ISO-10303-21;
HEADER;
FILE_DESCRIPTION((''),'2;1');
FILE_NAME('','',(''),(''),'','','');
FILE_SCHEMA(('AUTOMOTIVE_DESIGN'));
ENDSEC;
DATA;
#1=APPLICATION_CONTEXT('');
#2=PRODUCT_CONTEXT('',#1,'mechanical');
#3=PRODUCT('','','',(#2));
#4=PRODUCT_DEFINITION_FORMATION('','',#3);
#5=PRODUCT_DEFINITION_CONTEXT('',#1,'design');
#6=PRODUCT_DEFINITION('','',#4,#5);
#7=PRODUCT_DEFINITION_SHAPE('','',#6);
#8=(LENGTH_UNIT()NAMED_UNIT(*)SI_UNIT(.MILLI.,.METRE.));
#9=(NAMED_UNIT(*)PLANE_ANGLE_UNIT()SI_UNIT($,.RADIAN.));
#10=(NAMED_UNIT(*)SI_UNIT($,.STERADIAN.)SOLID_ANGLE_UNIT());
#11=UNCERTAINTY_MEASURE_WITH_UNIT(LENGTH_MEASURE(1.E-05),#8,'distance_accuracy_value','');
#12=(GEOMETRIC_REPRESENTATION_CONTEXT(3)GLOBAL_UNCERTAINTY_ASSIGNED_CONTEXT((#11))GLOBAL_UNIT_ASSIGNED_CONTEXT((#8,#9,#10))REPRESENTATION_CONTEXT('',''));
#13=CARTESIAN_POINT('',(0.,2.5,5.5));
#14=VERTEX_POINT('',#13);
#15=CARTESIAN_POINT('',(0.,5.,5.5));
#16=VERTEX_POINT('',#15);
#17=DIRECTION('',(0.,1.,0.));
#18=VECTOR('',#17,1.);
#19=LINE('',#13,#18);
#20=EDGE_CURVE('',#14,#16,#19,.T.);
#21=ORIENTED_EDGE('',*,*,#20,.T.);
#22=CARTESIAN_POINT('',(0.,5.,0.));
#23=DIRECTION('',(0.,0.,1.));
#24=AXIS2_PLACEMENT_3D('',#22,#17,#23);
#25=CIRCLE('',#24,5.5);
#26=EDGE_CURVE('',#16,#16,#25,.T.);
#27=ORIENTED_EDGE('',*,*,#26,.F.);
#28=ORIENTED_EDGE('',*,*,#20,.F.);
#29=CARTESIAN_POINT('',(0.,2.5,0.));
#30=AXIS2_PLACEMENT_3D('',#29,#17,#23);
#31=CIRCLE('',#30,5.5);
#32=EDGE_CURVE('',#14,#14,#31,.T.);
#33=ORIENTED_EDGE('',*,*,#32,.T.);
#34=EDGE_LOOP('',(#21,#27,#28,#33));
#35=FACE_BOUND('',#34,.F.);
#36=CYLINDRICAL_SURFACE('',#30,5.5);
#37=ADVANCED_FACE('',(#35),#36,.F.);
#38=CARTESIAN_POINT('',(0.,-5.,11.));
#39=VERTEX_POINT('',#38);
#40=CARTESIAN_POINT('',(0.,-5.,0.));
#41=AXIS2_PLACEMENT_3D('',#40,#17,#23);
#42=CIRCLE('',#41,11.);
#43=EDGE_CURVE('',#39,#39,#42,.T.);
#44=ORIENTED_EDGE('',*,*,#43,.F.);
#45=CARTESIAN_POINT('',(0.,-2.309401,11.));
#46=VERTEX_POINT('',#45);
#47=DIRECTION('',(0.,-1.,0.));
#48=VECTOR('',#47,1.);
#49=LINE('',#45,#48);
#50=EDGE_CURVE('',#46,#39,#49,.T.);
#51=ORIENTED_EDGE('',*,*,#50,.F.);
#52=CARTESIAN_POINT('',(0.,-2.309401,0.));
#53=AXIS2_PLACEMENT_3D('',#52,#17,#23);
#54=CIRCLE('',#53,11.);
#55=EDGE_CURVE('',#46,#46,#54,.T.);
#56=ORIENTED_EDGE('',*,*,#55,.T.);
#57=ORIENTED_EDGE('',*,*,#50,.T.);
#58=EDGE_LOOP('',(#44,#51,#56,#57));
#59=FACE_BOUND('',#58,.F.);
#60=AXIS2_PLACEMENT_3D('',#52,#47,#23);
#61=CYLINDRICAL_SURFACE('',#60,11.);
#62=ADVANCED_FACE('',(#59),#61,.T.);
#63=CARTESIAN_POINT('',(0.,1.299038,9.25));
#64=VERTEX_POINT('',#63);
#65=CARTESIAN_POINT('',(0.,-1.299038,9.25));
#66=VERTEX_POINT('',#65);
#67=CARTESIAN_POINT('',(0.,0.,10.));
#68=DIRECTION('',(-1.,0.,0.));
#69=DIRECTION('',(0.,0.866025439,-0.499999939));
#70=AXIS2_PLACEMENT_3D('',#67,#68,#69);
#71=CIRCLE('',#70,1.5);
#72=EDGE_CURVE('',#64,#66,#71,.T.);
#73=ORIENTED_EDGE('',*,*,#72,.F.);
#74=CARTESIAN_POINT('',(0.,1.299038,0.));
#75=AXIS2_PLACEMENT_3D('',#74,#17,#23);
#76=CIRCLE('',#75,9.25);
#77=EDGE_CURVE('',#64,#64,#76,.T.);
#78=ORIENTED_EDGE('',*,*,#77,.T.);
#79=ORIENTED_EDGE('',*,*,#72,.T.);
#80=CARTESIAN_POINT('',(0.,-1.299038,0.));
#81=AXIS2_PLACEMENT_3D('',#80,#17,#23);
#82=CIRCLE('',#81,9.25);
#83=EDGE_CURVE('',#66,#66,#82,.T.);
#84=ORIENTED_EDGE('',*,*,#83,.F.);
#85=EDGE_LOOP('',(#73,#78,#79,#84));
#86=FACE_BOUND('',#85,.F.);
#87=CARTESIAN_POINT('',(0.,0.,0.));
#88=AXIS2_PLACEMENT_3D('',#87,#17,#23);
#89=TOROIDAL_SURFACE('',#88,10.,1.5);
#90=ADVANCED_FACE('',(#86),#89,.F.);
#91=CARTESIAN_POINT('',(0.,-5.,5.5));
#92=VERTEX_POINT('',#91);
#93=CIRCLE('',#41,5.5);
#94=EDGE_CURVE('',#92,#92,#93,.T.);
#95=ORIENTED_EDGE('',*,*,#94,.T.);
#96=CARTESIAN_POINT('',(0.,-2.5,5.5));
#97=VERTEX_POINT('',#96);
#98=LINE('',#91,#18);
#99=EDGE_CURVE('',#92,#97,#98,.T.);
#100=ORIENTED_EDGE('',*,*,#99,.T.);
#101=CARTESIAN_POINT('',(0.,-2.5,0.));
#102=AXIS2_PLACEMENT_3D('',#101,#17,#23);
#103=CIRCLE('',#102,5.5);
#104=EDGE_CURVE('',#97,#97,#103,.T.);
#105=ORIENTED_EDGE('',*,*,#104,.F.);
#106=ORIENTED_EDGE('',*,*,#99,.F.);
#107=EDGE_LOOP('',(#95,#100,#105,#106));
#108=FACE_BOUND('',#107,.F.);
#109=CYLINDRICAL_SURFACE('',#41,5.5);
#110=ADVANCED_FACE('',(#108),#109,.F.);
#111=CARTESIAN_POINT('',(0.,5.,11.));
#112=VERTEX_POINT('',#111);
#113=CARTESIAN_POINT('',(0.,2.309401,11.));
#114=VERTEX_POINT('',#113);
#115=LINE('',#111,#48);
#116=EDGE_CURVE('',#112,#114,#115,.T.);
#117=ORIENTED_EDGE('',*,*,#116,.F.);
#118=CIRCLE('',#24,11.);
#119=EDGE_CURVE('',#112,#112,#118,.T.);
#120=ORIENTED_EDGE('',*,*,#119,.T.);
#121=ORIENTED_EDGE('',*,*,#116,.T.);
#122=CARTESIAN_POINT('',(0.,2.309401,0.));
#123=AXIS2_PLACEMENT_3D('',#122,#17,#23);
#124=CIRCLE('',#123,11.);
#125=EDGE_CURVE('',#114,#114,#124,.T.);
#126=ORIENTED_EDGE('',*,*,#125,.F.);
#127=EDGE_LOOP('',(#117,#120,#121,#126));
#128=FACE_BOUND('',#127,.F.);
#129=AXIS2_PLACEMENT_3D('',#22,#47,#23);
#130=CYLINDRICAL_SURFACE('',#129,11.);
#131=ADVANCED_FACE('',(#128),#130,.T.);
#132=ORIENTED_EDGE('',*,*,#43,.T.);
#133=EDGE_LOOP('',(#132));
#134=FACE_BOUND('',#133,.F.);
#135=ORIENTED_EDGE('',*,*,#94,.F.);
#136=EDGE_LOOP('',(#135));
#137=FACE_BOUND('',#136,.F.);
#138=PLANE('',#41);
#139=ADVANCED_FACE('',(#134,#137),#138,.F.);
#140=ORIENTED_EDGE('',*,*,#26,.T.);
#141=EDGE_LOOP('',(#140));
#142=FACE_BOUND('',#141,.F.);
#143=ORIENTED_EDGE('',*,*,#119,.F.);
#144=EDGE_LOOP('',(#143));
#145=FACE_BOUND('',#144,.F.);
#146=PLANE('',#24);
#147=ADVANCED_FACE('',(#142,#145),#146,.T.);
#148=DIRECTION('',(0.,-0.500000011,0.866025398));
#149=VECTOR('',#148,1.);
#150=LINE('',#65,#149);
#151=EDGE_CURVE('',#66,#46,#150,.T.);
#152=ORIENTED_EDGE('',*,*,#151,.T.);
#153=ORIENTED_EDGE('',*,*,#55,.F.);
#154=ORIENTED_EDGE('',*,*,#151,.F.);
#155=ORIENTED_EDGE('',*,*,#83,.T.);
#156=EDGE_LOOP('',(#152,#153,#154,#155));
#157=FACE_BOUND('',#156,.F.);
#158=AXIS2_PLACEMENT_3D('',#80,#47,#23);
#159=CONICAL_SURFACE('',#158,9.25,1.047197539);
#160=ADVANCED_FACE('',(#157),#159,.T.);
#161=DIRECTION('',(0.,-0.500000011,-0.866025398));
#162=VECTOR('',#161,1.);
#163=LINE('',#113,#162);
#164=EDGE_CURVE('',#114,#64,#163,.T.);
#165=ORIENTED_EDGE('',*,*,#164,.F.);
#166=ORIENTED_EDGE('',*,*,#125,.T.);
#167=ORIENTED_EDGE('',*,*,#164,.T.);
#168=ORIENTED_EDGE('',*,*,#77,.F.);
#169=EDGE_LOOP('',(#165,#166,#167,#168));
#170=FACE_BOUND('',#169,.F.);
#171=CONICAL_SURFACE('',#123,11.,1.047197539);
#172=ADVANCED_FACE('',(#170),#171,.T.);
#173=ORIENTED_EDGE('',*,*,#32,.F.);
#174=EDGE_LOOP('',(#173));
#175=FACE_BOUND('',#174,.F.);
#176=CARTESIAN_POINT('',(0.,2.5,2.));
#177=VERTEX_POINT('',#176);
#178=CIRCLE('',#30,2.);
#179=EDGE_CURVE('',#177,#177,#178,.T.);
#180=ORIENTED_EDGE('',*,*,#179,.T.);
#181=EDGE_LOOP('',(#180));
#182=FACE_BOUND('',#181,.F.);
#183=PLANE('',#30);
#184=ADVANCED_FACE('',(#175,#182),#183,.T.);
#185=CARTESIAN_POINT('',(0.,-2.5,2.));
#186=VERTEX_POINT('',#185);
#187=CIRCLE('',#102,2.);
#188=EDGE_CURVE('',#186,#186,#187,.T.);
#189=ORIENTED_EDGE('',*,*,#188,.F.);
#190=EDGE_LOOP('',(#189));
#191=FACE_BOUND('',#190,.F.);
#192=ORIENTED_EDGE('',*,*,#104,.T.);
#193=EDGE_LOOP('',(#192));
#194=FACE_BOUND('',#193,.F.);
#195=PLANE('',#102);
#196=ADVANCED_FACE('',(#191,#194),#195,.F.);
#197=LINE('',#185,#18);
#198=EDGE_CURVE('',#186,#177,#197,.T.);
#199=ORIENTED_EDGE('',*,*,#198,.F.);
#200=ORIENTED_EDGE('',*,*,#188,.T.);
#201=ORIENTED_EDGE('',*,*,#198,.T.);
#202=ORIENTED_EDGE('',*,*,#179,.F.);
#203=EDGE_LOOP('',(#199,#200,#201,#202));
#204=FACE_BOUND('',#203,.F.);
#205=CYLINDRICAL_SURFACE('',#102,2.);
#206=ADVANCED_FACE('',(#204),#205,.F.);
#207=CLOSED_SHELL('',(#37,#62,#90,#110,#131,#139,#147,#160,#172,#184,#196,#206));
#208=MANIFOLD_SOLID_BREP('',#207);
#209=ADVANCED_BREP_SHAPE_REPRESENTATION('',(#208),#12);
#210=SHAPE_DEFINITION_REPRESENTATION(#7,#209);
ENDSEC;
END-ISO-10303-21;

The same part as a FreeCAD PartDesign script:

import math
import FreeCAD as App
import Part
import Sketcher

V = App.Vector
Q = App.Units.Quantity

doc = App.newDocument("Part")
params = doc.addObject("Spreadsheet::Sheet", "Params")
for row, (alias, value) in enumerate([
    ("sketch1_radius", "1.5 mm"),
    ("sketch1_width", "5 mm"),
    ("sketch1_width2", "2.5 mm"),
    ("sketch1_height", "3.5 mm"),
    ("sketch1_height2", "5.5 mm"),
    ("revolution_angle", "360 deg"),
], start=1):
    params.set(f"A{row}", alias)
    params.set(f"B{row}", "=" + value)
    params.setAlias(f"B{row}", alias)

body = doc.addObject("PartDesign::Body", "Body")

# Sketch on YZ plane
sketch1 = body.newObject("Sketcher::SketchObject", "Sketch")
sketch1.AttachmentSupport = (doc.getObject("YZ_Plane"), [""])
sketch1.MapMode = "FlatFace"
sketch1.addGeometry(Part.LineSegment(V(-2.5, 5.5, 0), V(-2.5, 2, 0)), False)
sketch1.addGeometry(Part.LineSegment(V(-2.5, 2, 0), V(2.5, 2, 0)), False)
sketch1.addGeometry(Part.LineSegment(V(2.5, 2, 0), V(2.5, 5.5, 0)), False)
sketch1.addGeometry(Part.LineSegment(V(2.5, 5.5, 0), V(5, 5.5, 0)), False)
sketch1.addGeometry(Part.LineSegment(V(5, 5.5, 0), V(5, 11, 0)), False)
sketch1.addGeometry(Part.LineSegment(V(5, 11, 0), V(2.309401, 11, 0)), False)
sketch1.addGeometry(Part.LineSegment(V(2.309401, 11, 0), V(1.299038, 9.25, 0)), False)
sketch1.addGeometry(Part.ArcOfCircle(Part.Circle(V(0, 10, 0), V(0, 0, 1), 1.5), math.radians(-150.000004), math.radians(-29.999996)), False)
sketch1.addGeometry(Part.LineSegment(V(-1.299038, 9.25, 0), V(-2.309401, 11, 0)), False)
sketch1.addGeometry(Part.LineSegment(V(-2.309401, 11, 0), V(-5, 11, 0)), False)
sketch1.addGeometry(Part.LineSegment(V(-5, 11, 0), V(-5, 5.5, 0)), False)
sketch1.addGeometry(Part.LineSegment(V(-5, 5.5, 0), V(-2.5, 5.5, 0)), False)
sketch1.addConstraint(Sketcher.Constraint("Coincident", 0, 2, 1, 1))
sketch1.addConstraint(Sketcher.Constraint("Coincident", 1, 2, 2, 1))
sketch1.addConstraint(Sketcher.Constraint("Coincident", 2, 2, 3, 1))
sketch1.addConstraint(Sketcher.Constraint("Coincident", 3, 2, 4, 1))
sketch1.addConstraint(Sketcher.Constraint("Coincident", 4, 2, 5, 1))
sketch1.addConstraint(Sketcher.Constraint("Coincident", 5, 2, 6, 1))
sketch1.addConstraint(Sketcher.Constraint("Tangent", 6, 2, 7, 2))
sketch1.addConstraint(Sketcher.Constraint("Tangent", 7, 1, 8, 1))
sketch1.addConstraint(Sketcher.Constraint("Coincident", 8, 2, 9, 1))
sketch1.addConstraint(Sketcher.Constraint("Coincident", 9, 2, 10, 1))
sketch1.addConstraint(Sketcher.Constraint("Coincident", 10, 2, 11, 1))
sketch1.addConstraint(Sketcher.Constraint("Coincident", 11, 2, 0, 1))
sketch1.addConstraint(Sketcher.Constraint("Vertical", 0))
sketch1.addConstraint(Sketcher.Constraint("Horizontal", 1))
sketch1.addConstraint(Sketcher.Constraint("Vertical", 2))
sketch1.addConstraint(Sketcher.Constraint("Horizontal", 3))
sketch1.addConstraint(Sketcher.Constraint("Vertical", 4))
sketch1.addConstraint(Sketcher.Constraint("Horizontal", 5))
sketch1.addConstraint(Sketcher.Constraint("Horizontal", 9))
sketch1.addConstraint(Sketcher.Constraint("Vertical", 10))
sketch1.addConstraint(Sketcher.Constraint("Horizontal", 11))
sketch1.addConstraint(Sketcher.Constraint("Symmetric", 6, 2, 7, 1, -2))
sketch1.addConstraint(Sketcher.Constraint("Symmetric", 4, 2, 9, 2, -2))
sketch1.addConstraint(Sketcher.Constraint("Symmetric", 2, 2, 11, 2, -2))
sketch1.addConstraint(Sketcher.Constraint("Radius", 7, 1.5))
sketch1.addConstraint(Sketcher.Constraint("DistanceX", 1, 1, 1, 2, 5.0))
sketch1.addConstraint(Sketcher.Constraint("Angle", 6, Q("-120.000001 deg")))
sketch1.addConstraint(Sketcher.Constraint("DistanceX", 3, 1, 3, 2, 2.5))
sketch1.addConstraint(Sketcher.Constraint("DistanceY", 0, 2, 0, 1, 3.5))
sketch1.addConstraint(Sketcher.Constraint("DistanceY", 4, 1, 4, 2, 5.5))
sketch1.addConstraint(Sketcher.Constraint("DistanceY", -1, 1, 7, 3, 10.0))
sketch1.addConstraint(Sketcher.Constraint("DistanceY", -1, 1, 0, 2, 2.0))
sketch1.setExpression("Constraints[24]", "Params.sketch1_radius")
sketch1.setExpression("Constraints[25]", "Params.sketch1_width")
sketch1.setExpression("Constraints[27]", "Params.sketch1_width2")
sketch1.setExpression("Constraints[28]", "Params.sketch1_height")
sketch1.setExpression("Constraints[29]", "Params.sketch1_height2")
revolution = body.newObject("PartDesign::Revolution", "Revolution")
revolution.Profile = sketch1
revolution.ReferenceAxis = (sketch1, ["H_Axis"])
revolution.setExpression("Angle", "Params.revolution_angle")

doc.recompute()
